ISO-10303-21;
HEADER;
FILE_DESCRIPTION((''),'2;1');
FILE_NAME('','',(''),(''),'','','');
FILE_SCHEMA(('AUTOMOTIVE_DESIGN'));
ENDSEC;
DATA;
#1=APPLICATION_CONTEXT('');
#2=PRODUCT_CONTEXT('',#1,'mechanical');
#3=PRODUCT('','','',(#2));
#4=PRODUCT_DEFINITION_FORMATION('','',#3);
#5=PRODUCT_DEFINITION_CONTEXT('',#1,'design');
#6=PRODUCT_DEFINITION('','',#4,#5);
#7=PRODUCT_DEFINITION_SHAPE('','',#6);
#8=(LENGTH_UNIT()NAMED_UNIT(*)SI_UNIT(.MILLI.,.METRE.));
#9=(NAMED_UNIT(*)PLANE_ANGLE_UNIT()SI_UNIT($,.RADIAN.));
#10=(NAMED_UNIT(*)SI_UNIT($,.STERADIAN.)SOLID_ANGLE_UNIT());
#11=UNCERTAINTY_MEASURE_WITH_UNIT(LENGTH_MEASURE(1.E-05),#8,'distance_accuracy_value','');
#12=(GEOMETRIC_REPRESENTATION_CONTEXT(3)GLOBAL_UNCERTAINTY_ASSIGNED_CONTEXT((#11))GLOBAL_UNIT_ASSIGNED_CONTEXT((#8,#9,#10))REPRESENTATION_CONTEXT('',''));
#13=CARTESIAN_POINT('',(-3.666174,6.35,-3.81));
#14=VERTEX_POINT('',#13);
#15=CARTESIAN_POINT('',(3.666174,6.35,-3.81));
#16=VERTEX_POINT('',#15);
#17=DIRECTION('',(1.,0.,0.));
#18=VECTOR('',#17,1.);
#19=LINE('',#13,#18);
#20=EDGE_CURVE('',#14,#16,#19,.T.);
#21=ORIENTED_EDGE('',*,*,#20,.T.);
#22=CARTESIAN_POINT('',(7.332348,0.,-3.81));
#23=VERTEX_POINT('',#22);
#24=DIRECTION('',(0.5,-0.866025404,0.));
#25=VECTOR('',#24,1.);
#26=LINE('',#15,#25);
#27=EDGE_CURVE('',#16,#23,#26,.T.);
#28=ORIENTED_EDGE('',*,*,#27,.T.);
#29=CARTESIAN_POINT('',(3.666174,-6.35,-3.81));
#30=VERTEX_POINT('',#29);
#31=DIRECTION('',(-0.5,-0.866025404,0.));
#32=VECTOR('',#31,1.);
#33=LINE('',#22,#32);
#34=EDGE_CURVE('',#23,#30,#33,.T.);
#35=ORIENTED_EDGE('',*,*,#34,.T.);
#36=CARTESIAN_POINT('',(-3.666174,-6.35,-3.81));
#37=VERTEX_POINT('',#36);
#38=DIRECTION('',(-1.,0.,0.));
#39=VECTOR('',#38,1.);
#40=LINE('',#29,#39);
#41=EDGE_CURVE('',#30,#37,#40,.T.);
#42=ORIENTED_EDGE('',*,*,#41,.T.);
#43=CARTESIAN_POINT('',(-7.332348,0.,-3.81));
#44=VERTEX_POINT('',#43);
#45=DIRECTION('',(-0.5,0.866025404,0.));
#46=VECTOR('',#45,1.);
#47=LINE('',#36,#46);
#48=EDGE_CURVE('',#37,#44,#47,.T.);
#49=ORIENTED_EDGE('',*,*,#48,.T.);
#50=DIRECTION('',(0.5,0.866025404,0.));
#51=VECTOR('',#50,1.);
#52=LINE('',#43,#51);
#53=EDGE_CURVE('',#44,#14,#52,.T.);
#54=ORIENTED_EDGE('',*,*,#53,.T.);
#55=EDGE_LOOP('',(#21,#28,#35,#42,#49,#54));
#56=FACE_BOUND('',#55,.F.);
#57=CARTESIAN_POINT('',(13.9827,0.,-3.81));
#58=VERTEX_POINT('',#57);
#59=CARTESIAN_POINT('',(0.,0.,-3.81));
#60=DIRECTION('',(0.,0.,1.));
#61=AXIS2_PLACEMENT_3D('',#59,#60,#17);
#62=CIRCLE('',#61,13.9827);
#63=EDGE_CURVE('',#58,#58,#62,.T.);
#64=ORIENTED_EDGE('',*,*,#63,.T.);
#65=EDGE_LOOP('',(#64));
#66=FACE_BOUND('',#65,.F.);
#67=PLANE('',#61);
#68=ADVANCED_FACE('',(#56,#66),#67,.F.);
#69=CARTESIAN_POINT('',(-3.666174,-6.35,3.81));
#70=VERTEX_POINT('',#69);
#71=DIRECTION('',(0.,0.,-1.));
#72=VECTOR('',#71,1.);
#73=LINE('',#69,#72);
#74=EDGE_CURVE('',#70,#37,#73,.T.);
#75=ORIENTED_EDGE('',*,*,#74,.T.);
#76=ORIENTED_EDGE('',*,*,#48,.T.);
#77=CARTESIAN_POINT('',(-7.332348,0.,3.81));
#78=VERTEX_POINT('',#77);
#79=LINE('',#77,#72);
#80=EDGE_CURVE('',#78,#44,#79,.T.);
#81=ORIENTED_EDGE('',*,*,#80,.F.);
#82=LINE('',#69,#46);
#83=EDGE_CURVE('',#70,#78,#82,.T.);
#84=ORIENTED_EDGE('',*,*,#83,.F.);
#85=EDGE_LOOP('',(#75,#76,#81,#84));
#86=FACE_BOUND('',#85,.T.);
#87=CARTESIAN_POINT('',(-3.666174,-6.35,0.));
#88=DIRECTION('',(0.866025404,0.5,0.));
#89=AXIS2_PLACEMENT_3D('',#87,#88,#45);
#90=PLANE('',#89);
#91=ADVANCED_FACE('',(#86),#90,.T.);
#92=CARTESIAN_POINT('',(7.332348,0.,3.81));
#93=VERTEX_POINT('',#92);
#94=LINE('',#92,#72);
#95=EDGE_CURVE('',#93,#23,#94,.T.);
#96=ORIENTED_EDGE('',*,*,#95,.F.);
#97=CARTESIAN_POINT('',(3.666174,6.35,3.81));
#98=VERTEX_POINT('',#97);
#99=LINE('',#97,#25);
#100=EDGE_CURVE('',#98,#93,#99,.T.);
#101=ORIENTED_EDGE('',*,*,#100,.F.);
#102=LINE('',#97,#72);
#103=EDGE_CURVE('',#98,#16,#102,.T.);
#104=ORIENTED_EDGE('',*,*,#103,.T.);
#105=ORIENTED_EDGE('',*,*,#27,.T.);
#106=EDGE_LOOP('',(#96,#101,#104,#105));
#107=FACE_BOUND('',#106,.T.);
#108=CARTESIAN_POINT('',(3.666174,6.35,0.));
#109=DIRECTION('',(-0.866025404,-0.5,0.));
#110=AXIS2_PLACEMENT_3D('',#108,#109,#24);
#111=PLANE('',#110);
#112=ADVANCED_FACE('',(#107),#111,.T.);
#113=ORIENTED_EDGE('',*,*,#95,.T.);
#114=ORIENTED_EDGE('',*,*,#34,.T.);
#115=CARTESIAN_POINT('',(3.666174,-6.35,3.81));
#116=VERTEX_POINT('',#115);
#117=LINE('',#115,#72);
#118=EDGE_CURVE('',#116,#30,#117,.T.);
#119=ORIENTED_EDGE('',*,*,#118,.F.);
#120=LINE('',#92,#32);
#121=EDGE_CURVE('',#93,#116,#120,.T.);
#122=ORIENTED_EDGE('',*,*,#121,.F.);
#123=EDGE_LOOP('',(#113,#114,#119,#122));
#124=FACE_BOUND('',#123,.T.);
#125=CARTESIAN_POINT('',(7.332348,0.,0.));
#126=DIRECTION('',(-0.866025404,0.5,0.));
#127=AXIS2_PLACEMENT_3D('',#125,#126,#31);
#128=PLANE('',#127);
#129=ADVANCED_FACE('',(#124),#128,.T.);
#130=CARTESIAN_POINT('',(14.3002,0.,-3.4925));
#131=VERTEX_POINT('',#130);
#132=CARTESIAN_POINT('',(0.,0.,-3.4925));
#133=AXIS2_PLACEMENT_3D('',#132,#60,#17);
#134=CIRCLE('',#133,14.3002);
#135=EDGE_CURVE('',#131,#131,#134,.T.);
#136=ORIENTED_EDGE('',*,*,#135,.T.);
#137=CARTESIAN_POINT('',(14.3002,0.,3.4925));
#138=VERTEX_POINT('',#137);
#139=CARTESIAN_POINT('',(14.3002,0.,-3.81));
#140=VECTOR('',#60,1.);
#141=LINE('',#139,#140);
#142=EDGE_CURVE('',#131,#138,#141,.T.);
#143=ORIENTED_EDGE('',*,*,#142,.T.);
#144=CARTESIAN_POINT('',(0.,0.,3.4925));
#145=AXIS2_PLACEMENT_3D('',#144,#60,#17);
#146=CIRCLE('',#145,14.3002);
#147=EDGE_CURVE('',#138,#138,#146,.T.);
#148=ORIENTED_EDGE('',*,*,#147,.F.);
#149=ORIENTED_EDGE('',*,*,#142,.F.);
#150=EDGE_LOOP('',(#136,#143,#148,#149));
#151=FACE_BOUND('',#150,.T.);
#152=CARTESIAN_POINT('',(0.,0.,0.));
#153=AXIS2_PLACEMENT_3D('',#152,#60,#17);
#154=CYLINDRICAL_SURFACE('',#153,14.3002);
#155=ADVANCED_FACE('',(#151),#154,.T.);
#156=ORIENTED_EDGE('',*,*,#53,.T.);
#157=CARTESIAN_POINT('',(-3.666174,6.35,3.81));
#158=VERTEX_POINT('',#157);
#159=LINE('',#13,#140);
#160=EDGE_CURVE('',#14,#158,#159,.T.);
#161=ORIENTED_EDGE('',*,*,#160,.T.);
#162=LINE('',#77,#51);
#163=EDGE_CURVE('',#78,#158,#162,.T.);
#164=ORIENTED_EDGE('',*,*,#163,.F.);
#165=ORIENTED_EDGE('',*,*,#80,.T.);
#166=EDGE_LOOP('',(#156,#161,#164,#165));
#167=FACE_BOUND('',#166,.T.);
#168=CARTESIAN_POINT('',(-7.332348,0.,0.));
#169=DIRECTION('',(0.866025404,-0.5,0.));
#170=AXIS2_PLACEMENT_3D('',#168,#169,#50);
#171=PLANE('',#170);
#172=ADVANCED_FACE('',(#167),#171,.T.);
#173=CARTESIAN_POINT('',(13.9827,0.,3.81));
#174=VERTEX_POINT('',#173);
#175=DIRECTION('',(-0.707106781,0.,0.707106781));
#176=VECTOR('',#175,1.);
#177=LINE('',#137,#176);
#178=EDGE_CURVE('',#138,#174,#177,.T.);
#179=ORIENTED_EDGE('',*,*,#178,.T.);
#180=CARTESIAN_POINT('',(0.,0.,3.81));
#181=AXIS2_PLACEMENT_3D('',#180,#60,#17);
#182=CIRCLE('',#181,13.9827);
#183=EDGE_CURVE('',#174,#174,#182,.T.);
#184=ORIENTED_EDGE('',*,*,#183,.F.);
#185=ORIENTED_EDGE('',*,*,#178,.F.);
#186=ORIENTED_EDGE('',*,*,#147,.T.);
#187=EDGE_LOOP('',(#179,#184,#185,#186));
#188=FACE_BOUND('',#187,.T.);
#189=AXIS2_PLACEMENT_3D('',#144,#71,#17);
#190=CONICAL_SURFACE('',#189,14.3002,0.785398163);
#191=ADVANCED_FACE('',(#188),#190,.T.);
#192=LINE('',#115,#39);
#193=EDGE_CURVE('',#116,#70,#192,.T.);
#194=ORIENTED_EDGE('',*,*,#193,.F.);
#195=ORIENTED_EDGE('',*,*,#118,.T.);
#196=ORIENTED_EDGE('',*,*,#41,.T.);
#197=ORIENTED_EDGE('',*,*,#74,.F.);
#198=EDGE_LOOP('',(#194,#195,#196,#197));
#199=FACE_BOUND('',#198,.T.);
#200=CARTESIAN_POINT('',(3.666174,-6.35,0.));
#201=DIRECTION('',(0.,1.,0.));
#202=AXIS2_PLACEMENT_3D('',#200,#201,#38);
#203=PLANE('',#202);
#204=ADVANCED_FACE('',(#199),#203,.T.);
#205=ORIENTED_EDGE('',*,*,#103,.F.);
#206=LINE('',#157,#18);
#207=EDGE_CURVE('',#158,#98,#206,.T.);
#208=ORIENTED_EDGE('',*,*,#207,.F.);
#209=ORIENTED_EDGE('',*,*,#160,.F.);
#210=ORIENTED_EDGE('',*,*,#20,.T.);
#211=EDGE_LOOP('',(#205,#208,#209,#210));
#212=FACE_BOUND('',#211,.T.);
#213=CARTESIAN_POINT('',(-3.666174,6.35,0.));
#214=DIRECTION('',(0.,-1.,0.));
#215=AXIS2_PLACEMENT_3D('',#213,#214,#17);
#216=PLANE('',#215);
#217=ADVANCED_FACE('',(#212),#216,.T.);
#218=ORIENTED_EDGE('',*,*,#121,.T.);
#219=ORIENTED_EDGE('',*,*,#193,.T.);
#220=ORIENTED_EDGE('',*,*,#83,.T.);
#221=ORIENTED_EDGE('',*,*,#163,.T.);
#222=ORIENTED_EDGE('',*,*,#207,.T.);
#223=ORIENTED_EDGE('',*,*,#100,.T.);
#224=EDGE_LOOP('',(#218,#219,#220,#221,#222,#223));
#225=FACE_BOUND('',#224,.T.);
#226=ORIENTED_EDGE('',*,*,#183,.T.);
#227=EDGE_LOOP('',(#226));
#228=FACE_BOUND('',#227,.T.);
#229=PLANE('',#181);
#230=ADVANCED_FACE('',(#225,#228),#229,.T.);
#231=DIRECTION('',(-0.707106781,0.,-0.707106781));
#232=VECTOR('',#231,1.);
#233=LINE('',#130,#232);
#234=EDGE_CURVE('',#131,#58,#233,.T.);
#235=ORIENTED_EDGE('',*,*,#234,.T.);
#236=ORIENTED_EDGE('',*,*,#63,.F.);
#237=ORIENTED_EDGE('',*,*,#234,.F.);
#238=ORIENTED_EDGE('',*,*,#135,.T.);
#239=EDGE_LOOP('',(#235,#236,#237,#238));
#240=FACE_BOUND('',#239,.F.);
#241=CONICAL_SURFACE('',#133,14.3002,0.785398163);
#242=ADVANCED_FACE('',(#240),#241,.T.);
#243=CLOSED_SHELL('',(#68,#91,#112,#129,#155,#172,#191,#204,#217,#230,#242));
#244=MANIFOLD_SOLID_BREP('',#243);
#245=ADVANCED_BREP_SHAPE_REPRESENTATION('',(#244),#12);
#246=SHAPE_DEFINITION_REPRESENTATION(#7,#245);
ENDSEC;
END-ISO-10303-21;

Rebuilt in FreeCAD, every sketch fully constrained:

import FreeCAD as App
import Part
import Sketcher
from FreeCAD import Vector
Q = App.Units.Quantity


def edges_at(feature, points):
    """Names of the edges that pass closest to the given points."""
    edges = feature.Shape.Edges
    near = lambda p: min(range(len(edges)), key=lambda i: edges[i].distToShape(Part.Vertex(*p))[0])
    return sorted({f"Edge{near(p) + 1}" for p in points})

doc = App.newDocument("Part")
body = doc.addObject("PartDesign::Body", "Body")

# Sketch on XY plane
sketch1 = body.newObject("Sketcher::SketchObject", "Sketch")
sketch1.AttachmentSupport = (doc.getObject("XY_Plane"), [""])
sketch1.MapMode = "FlatFace"
sketch1.addGeometry(Part.Circle(Vector(0, 0, 0), Vector(0, 0, 1), 14), False)
sketch1.addGeometry(Part.LineSegment(Vector(-7, 0, 0), Vector(-4, 6, 0)), False)
sketch1.addGeometry(Part.LineSegment(Vector(-4, 6, 0), Vector(4, 6, 0)), False)
sketch1.addGeometry(Part.LineSegment(Vector(4, 6, 0), Vector(7, 0, 0)), False)
sketch1.addGeometry(Part.LineSegment(Vector(7, 0, 0), Vector(4, -6, 0)), False)
sketch1.addGeometry(Part.LineSegment(Vector(4, -6, 0), Vector(-4, -6, 0)), False)
sketch1.addGeometry(Part.LineSegment(Vector(-4, -6, 0), Vector(-7, 0, 0)), False)
sketch1.addConstraint(Sketcher.Constraint("Coincident", 1, 2, 2, 1))
sketch1.addConstraint(Sketcher.Constraint("Coincident", 2, 2, 3, 1))
sketch1.addConstraint(Sketcher.Constraint("Coincident", 3, 2, 4, 1))
sketch1.addConstraint(Sketcher.Constraint("Coincident", 4, 2, 5, 1))
sketch1.addConstraint(Sketcher.Constraint("Coincident", 5, 2, 6, 1))
sketch1.addConstraint(Sketcher.Constraint("Coincident", 6, 2, 1, 1))
sketch1.addConstraint(Sketcher.Constraint("Horizontal", 2))
sketch1.addConstraint(Sketcher.Constraint("Horizontal", 5))
sketch1.addConstraint(Sketcher.Constraint("Coincident", 0, 3, -1, 1))
sketch1.addConstraint(Sketcher.Constraint("Symmetric", 1, 2, 4, 2, -1, 1))
sketch1.addConstraint(Sketcher.Constraint("Symmetric", 3, 2, 6, 2, -1, 1))
sketch1.addConstraint(Sketcher.Constraint("PointOnObject", 3, 2, -1))
sketch1.addConstraint(Sketcher.Constraint("Parallel", 3, 6))
sketch1.addConstraint(Sketcher.Constraint("Vertical", 2, 2, 4, 2))
sketch1.addConstraint(Sketcher.Constraint("Diameter", 0, Q("1.126 in")))
sketch1.addConstraint(Sketcher.Constraint("Angle", 1, Q("60 deg")))
sketch1.addConstraint(Sketcher.Constraint("DistanceY", 4, 2, 2, 2, Q("0.5 in")))
sketch1.addConstraint(Sketcher.Constraint("DistanceX", 2, 1, 2, 2, Q("7.332348 mm")))
pad1 = body.newObject("PartDesign::Pad", "Pad")
pad1.Profile = sketch1
pad1.Length = Q("0.3 in")
pad1.Midplane = True
doc.recompute()

chamfer = body.newObject("PartDesign::Chamfer", "Chamfer")
chamfer.Base = (pad1, edges_at(pad1, [(-14.3, 0, 3.81), (-14.3, 0, -3.81)]))
chamfer.Size = Q("0.0125 in")

doc.recompute()
